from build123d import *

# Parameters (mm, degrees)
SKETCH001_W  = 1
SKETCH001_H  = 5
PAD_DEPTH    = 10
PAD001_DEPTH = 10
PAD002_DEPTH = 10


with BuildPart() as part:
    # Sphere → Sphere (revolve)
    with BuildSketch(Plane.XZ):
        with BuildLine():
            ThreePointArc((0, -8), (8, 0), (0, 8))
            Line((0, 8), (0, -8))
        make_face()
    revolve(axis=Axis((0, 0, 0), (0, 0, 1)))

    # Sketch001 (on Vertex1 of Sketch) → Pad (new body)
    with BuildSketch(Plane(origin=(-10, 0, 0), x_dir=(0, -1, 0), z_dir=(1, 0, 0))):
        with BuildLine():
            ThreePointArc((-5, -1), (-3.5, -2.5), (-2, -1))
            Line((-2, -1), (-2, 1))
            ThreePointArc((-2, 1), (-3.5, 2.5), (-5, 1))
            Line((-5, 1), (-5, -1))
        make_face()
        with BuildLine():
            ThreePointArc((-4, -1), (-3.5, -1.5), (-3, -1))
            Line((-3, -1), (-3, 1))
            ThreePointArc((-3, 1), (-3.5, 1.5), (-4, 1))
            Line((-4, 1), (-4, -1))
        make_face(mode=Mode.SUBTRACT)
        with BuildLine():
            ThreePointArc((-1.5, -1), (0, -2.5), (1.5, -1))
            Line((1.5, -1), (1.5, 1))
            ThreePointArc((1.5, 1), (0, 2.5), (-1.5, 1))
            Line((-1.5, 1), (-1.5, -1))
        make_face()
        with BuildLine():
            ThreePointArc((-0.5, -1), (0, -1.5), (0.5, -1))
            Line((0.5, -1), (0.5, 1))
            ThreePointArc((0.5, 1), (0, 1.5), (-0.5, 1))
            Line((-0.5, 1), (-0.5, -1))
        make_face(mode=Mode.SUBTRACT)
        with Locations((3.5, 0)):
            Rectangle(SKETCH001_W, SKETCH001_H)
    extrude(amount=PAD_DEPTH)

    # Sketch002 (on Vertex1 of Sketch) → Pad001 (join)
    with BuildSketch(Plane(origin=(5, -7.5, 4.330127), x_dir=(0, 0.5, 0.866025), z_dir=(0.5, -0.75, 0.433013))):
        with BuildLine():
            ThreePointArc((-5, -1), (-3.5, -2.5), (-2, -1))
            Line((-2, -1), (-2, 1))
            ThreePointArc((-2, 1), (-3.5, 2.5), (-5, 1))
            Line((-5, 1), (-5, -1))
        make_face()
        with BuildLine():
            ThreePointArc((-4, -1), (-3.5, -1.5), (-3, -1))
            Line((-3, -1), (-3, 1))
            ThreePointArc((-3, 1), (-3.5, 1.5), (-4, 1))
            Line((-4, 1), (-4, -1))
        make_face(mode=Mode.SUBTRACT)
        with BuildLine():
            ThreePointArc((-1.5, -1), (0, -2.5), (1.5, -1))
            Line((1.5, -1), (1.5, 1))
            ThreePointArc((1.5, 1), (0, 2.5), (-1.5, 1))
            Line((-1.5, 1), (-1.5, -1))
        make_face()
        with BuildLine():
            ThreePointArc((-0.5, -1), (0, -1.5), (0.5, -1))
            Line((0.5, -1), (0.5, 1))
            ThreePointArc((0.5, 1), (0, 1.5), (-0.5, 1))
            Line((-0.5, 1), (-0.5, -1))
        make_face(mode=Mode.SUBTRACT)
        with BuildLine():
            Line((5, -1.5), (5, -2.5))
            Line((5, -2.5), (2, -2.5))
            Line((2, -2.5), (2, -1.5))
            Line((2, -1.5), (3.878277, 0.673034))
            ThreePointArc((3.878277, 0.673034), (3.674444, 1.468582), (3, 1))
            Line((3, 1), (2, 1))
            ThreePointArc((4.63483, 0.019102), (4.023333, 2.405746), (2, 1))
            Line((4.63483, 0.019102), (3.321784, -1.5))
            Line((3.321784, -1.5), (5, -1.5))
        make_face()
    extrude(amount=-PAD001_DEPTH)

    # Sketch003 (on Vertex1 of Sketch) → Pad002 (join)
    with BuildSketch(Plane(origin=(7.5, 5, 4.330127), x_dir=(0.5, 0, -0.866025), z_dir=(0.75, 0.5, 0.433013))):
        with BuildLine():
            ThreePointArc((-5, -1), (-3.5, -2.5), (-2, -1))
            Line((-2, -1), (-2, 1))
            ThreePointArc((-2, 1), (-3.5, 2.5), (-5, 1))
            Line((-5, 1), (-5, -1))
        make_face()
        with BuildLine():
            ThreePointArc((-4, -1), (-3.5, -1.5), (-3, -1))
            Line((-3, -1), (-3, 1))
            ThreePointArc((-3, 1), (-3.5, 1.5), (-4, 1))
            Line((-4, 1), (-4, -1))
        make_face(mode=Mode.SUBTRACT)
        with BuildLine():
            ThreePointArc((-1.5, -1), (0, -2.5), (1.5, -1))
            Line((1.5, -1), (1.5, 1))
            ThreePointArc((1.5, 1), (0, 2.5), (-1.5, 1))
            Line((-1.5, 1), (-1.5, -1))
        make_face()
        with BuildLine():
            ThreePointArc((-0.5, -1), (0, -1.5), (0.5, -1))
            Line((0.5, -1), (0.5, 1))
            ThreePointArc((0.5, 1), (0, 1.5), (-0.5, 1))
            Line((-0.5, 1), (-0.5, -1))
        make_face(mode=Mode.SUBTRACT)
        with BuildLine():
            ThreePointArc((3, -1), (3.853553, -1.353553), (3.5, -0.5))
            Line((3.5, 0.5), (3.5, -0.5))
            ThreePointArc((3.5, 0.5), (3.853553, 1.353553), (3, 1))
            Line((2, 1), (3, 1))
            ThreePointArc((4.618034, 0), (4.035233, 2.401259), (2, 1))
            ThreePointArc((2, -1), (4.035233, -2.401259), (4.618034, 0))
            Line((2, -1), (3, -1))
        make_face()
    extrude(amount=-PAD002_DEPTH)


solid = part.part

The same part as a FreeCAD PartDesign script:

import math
import FreeCAD as App
import Part
import Sketcher
from FreeCAD import Vector
Q = App.Units.Quantity


def add_polygon(sketch, points):
    """Adds a closed chain of lines whose ends are joined by coincident constraints."""
    first, n = sketch.GeometryCount, len(points)
    for a, b in zip(points, points[1:] + points[:1]):
        sketch.addGeometry(Part.LineSegment(App.Vector(*a, 0), App.Vector(*b, 0)), False)
    for i in range(n):
        sketch.addConstraint(Sketcher.Constraint("Coincident", first + i, 2, first + (i + 1) % n, 1))

doc = App.newDocument("Part")
params = doc.addObject("Spreadsheet::Sheet", "Params")
for row, (alias, value) in enumerate([
    ("sketch1_radius", "8 mm"),
    ("revolution_angle", "360 deg"),
    ("sketch2_radius", "1.5 mm"),
    ("sketch2_radius2", "0.5 mm"),
    ("sketch2_width", "1 mm"),
    ("sketch2_height", "2 mm"),
    ("sketch2_height2", "5 mm"),
    ("pad1_length", "10 mm"),
    ("sketch3_radius", "1.5 mm"),
    ("sketch3_radius2", "0.5 mm"),
    ("sketch3_width", "3 mm"),
    ("sketch3_height", "2 mm"),
    ("pad2_length", "10 mm"),
    ("sketch4_radius", "1.5 mm"),
    ("sketch4_radius2", "0.5 mm"),
    ("pad3_length", "10 mm"),
], start=1):
    params.set(f"A{row}", alias)
    params.set(f"B{row}", "=" + value)
    params.setAlias(f"B{row}", alias)

body = doc.addObject("PartDesign::Body", "Body")

# Sketch on XZ plane
sketch1 = body.newObject("Sketcher::SketchObject", "Sketch")
sketch1.AttachmentSupport = (doc.getObject("XZ_Plane"), [""])
sketch1.MapMode = "FlatFace"
sketch1.addGeometry([
    Part.ArcOfCircle(Part.Circle(Vector(0, 0, 0), Vector(0, 0, 1), 8), math.radians(-90), math.radians(90)),
    Part.LineSegment(Vector(0, 8, 0), Vector(0, -8, 0)),
], False)
sketch1.addConstraint([
    Sketcher.Constraint("Coincident", 0, 1, 1, 2),
    Sketcher.Constraint("Coincident", 1, 1, 0, 2),
    Sketcher.Constraint("Vertical", 1),
    Sketcher.Constraint("Coincident", 0, 3, -1, 1),
    Sketcher.Constraint("PointOnObject", 0, 1, -2),
    Sketcher.Constraint("Radius", 0, Q("8 mm")),
])
sketch1.setExpression("Constraints[5]", "Params.sketch1_radius")
revolution = body.newObject("PartDesign::Revolution", "Revolution")
revolution.Profile = sketch1
revolution.ReferenceAxis = (sketch1, ["V_Axis"])
revolution.setExpression("Angle", "Params.revolution_angle")

# Sketch on YZ plane
sketch2 = body.newObject("Sketcher::SketchObject", "Sketch001")
sketch2.AttachmentSupport = (doc.getObject("YZ_Plane"), [""])
sketch2.MapMode = "FlatFace"
sketch2.AttachmentOffset = App.Placement(Vector(0, 0, -10), App.Rotation())
sketch2.addGeometry(Part.ArcOfCircle(Part.Circle(Vector(3.5, 1, 0), Vector(0, 0, 1), 1.5), math.radians(0), math.radians(180)), False)  # 0
sketch2.addGeometry(Part.LineSegment(Vector(2, 1, 0), Vector(2, -1, 0)), False)  # 1
sketch2.addGeometry(Part.ArcOfCircle(Part.Circle(Vector(3.5, -1, 0), Vector(0, 0, 1), 1.5), math.radians(180), math.radians(360)), False)  # 2
sketch2.addGeometry(Part.LineSegment(Vector(5, -1, 0), Vector(5, 1, 0)), False)  # 3
sketch2.addGeometry(Part.ArcOfCircle(Part.Circle(Vector(3.5, 1, 0), Vector(0, 0, 1), 0.5), math.radians(0), math.radians(180)), False)  # 4
sketch2.addGeometry(Part.LineSegment(Vector(4, 1, 0), Vector(4, -1, 0)), False)  # 5
sketch2.addGeometry(Part.ArcOfCircle(Part.Circle(Vector(3.5, -1, 0), Vector(0, 0, 1), 0.5), math.radians(180), math.radians(360)), False)  # 6
sketch2.addGeometry(Part.LineSegment(Vector(3, -1, 0), Vector(3, 1, 0)), False)  # 7
sketch2.addGeometry(Part.ArcOfCircle(Part.Circle(Vector(0, 1, 0), Vector(0, 0, 1), 1.5), math.radians(0), math.radians(180)), False)  # 8
sketch2.addGeometry(Part.LineSegment(Vector(-1.5, 1, 0), Vector(-1.5, -1, 0)), False)  # 9
sketch2.addGeometry(Part.ArcOfCircle(Part.Circle(Vector(0, -1, 0), Vector(0, 0, 1), 1.5), math.radians(180), math.radians(360)), False)  # 10
sketch2.addGeometry(Part.LineSegment(Vector(1.5, -1, 0), Vector(1.5, 1, 0)), False)  # 11
sketch2.addGeometry(Part.ArcOfCircle(Part.Circle(Vector(0, 1, 0), Vector(0, 0, 1), 0.5), math.radians(0), math.radians(180)), False)  # 12
sketch2.addGeometry(Part.LineSegment(Vector(0.5, 1, 0), Vector(0.5, -1, 0)), False)  # 13
sketch2.addGeometry(Part.ArcOfCircle(Part.Circle(Vector(0, -1, 0), Vector(0, 0, 1), 0.5), math.radians(180), math.radians(360)), False)  # 14
sketch2.addGeometry(Part.LineSegment(Vector(-0.5, -1, 0), Vector(-0.5, 1, 0)), False)  # 15
add_polygon(sketch2, [(-3, -2.5), (-3, 2.5), (-4, 2.5), (-4, -2.5)])  # lines 16-19
sketch2.addConstraint([
    Sketcher.Constraint("Tangent", 0, 2, 1, 1),
    Sketcher.Constraint("Tangent", 1, 2, 2, 1),
    Sketcher.Constraint("Tangent", 2, 2, 3, 1),
    Sketcher.Constraint("Tangent", 3, 2, 0, 1),
    Sketcher.Constraint("Tangent", 4, 1, 5, 1),
    Sketcher.Constraint("Tangent", 5, 2, 6, 2),
    Sketcher.Constraint("Tangent", 6, 1, 7, 1),
    Sketcher.Constraint("Tangent", 7, 2, 4, 2),
    Sketcher.Constraint("Tangent", 8, 2, 9, 1),
    Sketcher.Constraint("Tangent", 9, 2, 10, 1),
    Sketcher.Constraint("Tangent", 10, 2, 11, 1),
    Sketcher.Constraint("Tangent", 11, 2, 8, 1),
    Sketcher.Constraint("Tangent", 12, 1, 13, 1),
    Sketcher.Constraint("Tangent", 13, 2, 14, 2),
    Sketcher.Constraint("Tangent", 14, 1, 15, 1),
    Sketcher.Constraint("Tangent", 15, 2, 12, 2),
    Sketcher.Constraint("Vertical", 1),
    Sketcher.Constraint("Vertical", 3),
    Sketcher.Constraint("Vertical", 5),
    Sketcher.Constraint("Vertical", 7),
    Sketcher.Constraint("Vertical", 9),
    Sketcher.Constraint("Vertical", 11),
    Sketcher.Constraint("Vertical", 13),
    Sketcher.Constraint("Vertical", 15),
    Sketcher.Constraint("Vertical", 16),
    Sketcher.Constraint("Horizontal", 17),
    Sketcher.Constraint("Vertical", 18),
    Sketcher.Constraint("Horizontal", 19),
    Sketcher.Constraint("Coincident", 4, 3, 0, 3),
    Sketcher.Constraint("Coincident", 12, 3, 8, 3),
    Sketcher.Constraint("Equal", 2, 8),
    Sketcher.Constraint("Equal", 6, 12),
    Sketcher.Constraint("Symmetric", 8, 3, 10, 3, -1, 1),
    Sketcher.Constraint("Horizontal", 4, 3, 8, 3),
    Sketcher.Constraint("Horizontal", 6, 3, 10, 3),
    Sketcher.Constraint("Horizontal", 6, 3, 14, 3),
    Sketcher.Constraint("Horizontal", 14, 3, 1, 2),
    Sketcher.Constraint("Radius", 0, Q("1.5 mm")),
    Sketcher.Constraint("Radius", 4, Q("0.5 mm")),
    Sketcher.Constraint("DistanceX", 17, 2, 17, 1, Q("1 mm")),
    Sketcher.Constraint("DistanceY", 1, 2, 1, 1, Q("2 mm")),
    Sketcher.Constraint("DistanceY", 16, 1, 16, 2, Q("5 mm")),
    Sketcher.Constraint("DistanceX", -1, 1, 0, 2, Q("2 mm")),
    Sketcher.Constraint("DistanceX", 16, 2, -1, 1, Q("3 mm")),
    Sketcher.Constraint("DistanceY", -1, 1, 16, 2, Q("2.5 mm")),
])
sketch2.setExpression("Constraints[41]", "Params.sketch2_radius")
sketch2.setExpression("Constraints[42]", "Params.sketch2_radius2")
sketch2.setExpression("Constraints[43]", "Params.sketch2_width")
sketch2.setExpression("Constraints[44]", "Params.sketch2_height")
sketch2.setExpression("Constraints[45]", "Params.sketch2_height2")
pad1 = body.newObject("PartDesign::Pad", "Pad")
pad1.Profile = sketch2
pad1.setExpression("Length", "Params.pad1_length")

# Sketch on an angled plane
sketch3 = body.newObject("Sketcher::SketchObject", "Sketch002")
sketch3.Placement = App.Placement(Vector(5, -7.5, 4.330127), App.Rotation(Vector(-0.000000042, 0.500000237, 0.866025267), Vector(-0.866025441, -0.433012595, 0.250000054), Vector(0.499999935, -0.749999903, 0.433012944), "ZXY"))
sketch3.addGeometry([
    Part.ArcOfCircle(Part.Circle(Vector(-3.5, -1, 0), Vector(0, 0, 1), 1.5), math.radians(180), math.radians(360)),  # 0
    Part.LineSegment(Vector(-2, -1, 0), Vector(-2, 1, 0)),  # 1
    Part.ArcOfCircle(Part.Circle(Vector(-3.5, 1, 0), Vector(0, 0, 1), 1.5), math.radians(0), math.radians(180)),  # 2
    Part.LineSegment(Vector(-5, 1, 0), Vector(-5, -1, 0)),  # 3
    Part.ArcOfCircle(Part.Circle(Vector(-3.5, -1, 0), Vector(0, 0, 1), 0.5), math.radians(180), math.radians(360)),  # 4
    Part.LineSegment(Vector(-4, -1, 0), Vector(-4, 1, 0)),  # 5
    Part.ArcOfCircle(Part.Circle(Vector(-3.5, 1, 0), Vector(0, 0, 1), 0.5), math.radians(0), math.radians(180)),  # 6
    Part.LineSegment(Vector(-3, 1, 0), Vector(-3, -1, 0)),  # 7
    Part.ArcOfCircle(Part.Circle(Vector(0, -1, 0), Vector(0, 0, 1), 1.5), math.radians(180), math.radians(360)),  # 8
    Part.LineSegment(Vector(1.5, -1, 0), Vector(1.5, 1, 0)),  # 9
    Part.ArcOfCircle(Part.Circle(Vector(0, 1, 0), Vector(0, 0, 1), 1.5), math.radians(0), math.radians(180)),  # 10
    Part.LineSegment(Vector(-1.5, 1, 0), Vector(-1.5, -1, 0)),  # 11
    Part.ArcOfCircle(Part.Circle(Vector(0, -1, 0), Vector(0, 0, 1), 0.5), math.radians(180), math.radians(360)),  # 12
    Part.LineSegment(Vector(-0.5, -1, 0), Vector(-0.5, 1, 0)),  # 13
    Part.ArcOfCircle(Part.Circle(Vector(0, 1, 0), Vector(0, 0, 1), 0.5), math.radians(0), math.radians(180)),  # 14
    Part.LineSegment(Vector(0.5, 1, 0), Vector(0.5, -1, 0)),  # 15
    Part.LineSegment(Vector(5, -2.5, 0), Vector(5, -1.5, 0)),  # 16
    Part.LineSegment(Vector(5, -1.5, 0), Vector(3.3, -1.5, 0)),  # 17
    Part.LineSegment(Vector(3.3, -1.5, 0), Vector(4.6, 0, 0)),  # 18
    Part.ArcOfCircle(Part.Circle(Vector(3.5, 1, 0), Vector(0, 0, 1), 1.5), math.radians(-41), math.radians(180)),  # 19
    Part.LineSegment(Vector(2, 1, 0), Vector(3, 1, 0)),  # 20
    Part.ArcOfCircle(Part.Circle(Vector(3.5, 1, 0), Vector(0, 0, 1), 0.5), math.radians(-41), math.radians(180)),  # 21
    Part.LineSegment(Vector(3.9, 0.7, 0), Vector(2, -1.5, 0)),  # 22
    Part.LineSegment(Vector(2, -1.5, 0), Vector(2, -2.5, 0)),  # 23
    Part.LineSegment(Vector(2, -2.5, 0), Vector(5, -2.5, 0)),  # 24
], False)
sketch3.addConstraint([
    Sketcher.Constraint("Tangent", 0, 2, 1, 1),
    Sketcher.Constraint("Tangent", 1, 2, 2, 1),
    Sketcher.Constraint("Tangent", 2, 2, 3, 1),
    Sketcher.Constraint("Tangent", 3, 2, 0, 1),
    Sketcher.Constraint("Tangent", 4, 1, 5, 1),
    Sketcher.Constraint("Tangent", 5, 2, 6, 2),
    Sketcher.Constraint("Tangent", 6, 1, 7, 1),
    Sketcher.Constraint("Tangent", 7, 2, 4, 2),
    Sketcher.Constraint("Tangent", 8, 2, 9, 1),
    Sketcher.Constraint("Tangent", 9, 2, 10, 1),
    Sketcher.Constraint("Tangent", 10, 2, 11, 1),
    Sketcher.Constraint("Tangent", 11, 2, 8, 1),
    Sketcher.Constraint("Tangent", 12, 1, 13, 1),
    Sketcher.Constraint("Tangent", 13, 2, 14, 2),
    Sketcher.Constraint("Tangent", 14, 1, 15, 1),
    Sketcher.Constraint("Tangent", 15, 2, 12, 2),
    Sketcher.Constraint("Coincident", 16, 2, 17, 1),
    Sketcher.Constraint("Coincident", 17, 2, 18, 1),
    Sketcher.Constraint("Tangent", 18, 2, 19, 1),
    Sketcher.Constraint("Coincident", 19, 2, 20, 1),
    Sketcher.Constraint("Coincident", 20, 2, 21, 2),
    Sketcher.Constraint("Tangent", 21, 1, 22, 1),
    Sketcher.Constraint("Coincident", 22, 2, 23, 1),
    Sketcher.Constraint("Coincident", 23, 2, 24, 1),
    Sketcher.Constraint("Coincident", 24, 2, 16, 1),
    Sketcher.Constraint("Vertical", 1),
    Sketcher.Constraint("Vertical", 3),
    Sketcher.Constraint("Vertical", 5),
    Sketcher.Constraint("Vertical", 7),
    Sketcher.Constraint("Vertical", 9),
    Sketcher.Constraint("Vertical", 11),
    Sketcher.Constraint("Vertical", 13),
    Sketcher.Constraint("Vertical", 15),
    Sketcher.Constraint("Vertical", 16),
    Sketcher.Constraint("Horizontal", 17),
    Sketcher.Constraint("Horizontal", 20),
    Sketcher.Constraint("Vertical", 23),
    Sketcher.Constraint("Horizontal", 24),
    Sketcher.Constraint("Coincident", 4, 3, 0, 3),
    Sketcher.Constraint("Coincident", 12, 3, 8, 3),
    Sketcher.Constraint("Coincident", 21, 3, 19, 3),
    Sketcher.Constraint("Equal", 2, 8),
    Sketcher.Constraint("Equal", 6, 12),
    Sketcher.Constraint("Equal", 10, 19),
    Sketcher.Constraint("Equal", 14, 21),
    Sketcher.Constraint("Symmetric", 8, 3, 10, 3, -1, 1),
    Sketcher.Constraint("Symmetric", 0, 3, 19, 3, -1, 1),
    Sketcher.Constraint("Parallel", 18, 22),
    Sketcher.Constraint("Horizontal", 4, 3, 8, 3),
    Sketcher.Constraint("Horizontal", 6, 3, 10, 3),
    Sketcher.Constraint("Horizontal", 6, 3, 14, 3),
    Sketcher.Constraint("Horizontal", 21, 3, 1, 2),
    Sketcher.Constraint("Horizontal", 14, 1, 19, 2),
    Sketcher.Constraint("Horizontal", 17, 2, 22, 2),
    Sketcher.Constraint("Vertical", 19, 2, 22, 2),
    Sketcher.Constraint("Equal", 20, 16),
    Sketcher.Constraint("Radius", 0, Q("1.5 mm")),
    Sketcher.Constraint("Radius", 4, Q("0.5 mm")),
    Sketcher.Constraint("DistanceX", 24, 1, 24, 2, Q("3 mm")),
    Sketcher.Constraint("DistanceY", 1, 1, 1, 2, Q("2 mm")),
    Sketcher.Constraint("DistanceX", 0, 2, -1, 1, Q("2 mm")),
    Sketcher.Constraint("DistanceY", 16, 2, -1, 1, Q("1.5 mm")),
])
sketch3.setExpression("Constraints[56]", "Params.sketch3_radius")
sketch3.setExpression("Constraints[57]", "Params.sketch3_radius2")
sketch3.setExpression("Constraints[58]", "Params.sketch3_width")
sketch3.setExpression("Constraints[59]", "Params.sketch3_height")
pad2 = body.newObject("PartDesign::Pad", "Pad001")
pad2.Profile = sketch3
pad2.setExpression("Length", "Params.pad2_length")
pad2.Reversed = True

# Sketch on an angled plane
sketch4 = body.newObject("Sketcher::SketchObject", "Sketch003")
sketch4.Placement = App.Placement(Vector(7.5, 5, 4.330127), App.Rotation(Vector(0.500000237, 0.000000042, -0.866025267), Vector(-0.433012595, 0.866025441, -0.250000054), Vector(0.749999903, 0.499999935, 0.433012944), "ZXY"))
sketch4.addGeometry([
    Part.ArcOfCircle(Part.Circle(Vector(-3.5, -1, 0), Vector(0, 0, 1), 1.5), math.radians(180), math.radians(360)),  # 0
    Part.LineSegment(Vector(-2, -1, 0), Vector(-2, 1, 0)),  # 1
    Part.ArcOfCircle(Part.Circle(Vector(-3.5, 1, 0), Vector(0, 0, 1), 1.5), math.radians(0), math.radians(180)),  # 2
    Part.LineSegment(Vector(-5, 1, 0), Vector(-5, -1, 0)),  # 3
    Part.ArcOfCircle(Part.Circle(Vector(-3.5, -1, 0), Vector(0, 0, 1), 0.5), math.radians(180), math.radians(360)),  # 4
    Part.LineSegment(Vector(-4, -1, 0), Vector(-4, 1, 0)),  # 5
    Part.ArcOfCircle(Part.Circle(Vector(-3.5, 1, 0), Vector(0, 0, 1), 0.5), math.radians(0), math.radians(180)),  # 6
    Part.LineSegment(Vector(-3, 1, 0), Vector(-3, -1, 0)),  # 7
    Part.ArcOfCircle(Part.Circle(Vector(0, -1, 0), Vector(0, 0, 1), 1.5), math.radians(180), math.radians(360)),  # 8
    Part.LineSegment(Vector(1.5, -1, 0), Vector(1.5, 1, 0)),  # 9
    Part.ArcOfCircle(Part.Circle(Vector(0, 1, 0), Vector(0, 0, 1), 1.5), math.radians(0), math.radians(180)),  # 10
    Part.LineSegment(Vector(-1.5, 1, 0), Vector(-1.5, -1, 0)),  # 11
    Part.ArcOfCircle(Part.Circle(Vector(0, -1, 0), Vector(0, 0, 1), 0.5), math.radians(180), math.radians(360)),  # 12
    Part.LineSegment(Vector(-0.5, -1, 0), Vector(-0.5, 1, 0)),  # 13
    Part.ArcOfCircle(Part.Circle(Vector(0, 1, 0), Vector(0, 0, 1), 0.5), math.radians(0), math.radians(180)),  # 14
    Part.LineSegment(Vector(0.5, 1, 0), Vector(0.5, -1, 0)),  # 15
    Part.ArcOfCircle(Part.Circle(Vector(3.5, -1, 0), Vector(0, 0, 1), 0.5), math.radians(-180), math.radians(90)),  # 16
    Part.LineSegment(Vector(3, -1, 0), Vector(2, -1, 0)),  # 17
    Part.ArcOfCircle(Part.Circle(Vector(3.5, -1, 0), Vector(0, 0, 1), 1.5), math.radians(180), math.radians(402)),  # 18
    Part.ArcOfCircle(Part.Circle(Vector(3.5, 1, 0), Vector(0, 0, 1), 1.5), math.radians(-42), math.radians(180)),  # 19
    Part.LineSegment(Vector(2, 1, 0), Vector(3, 1, 0)),  # 20
    Part.ArcOfCircle(Part.Circle(Vector(3.5, 1, 0), Vector(0, 0, 1), 0.5), math.radians(-90), math.radians(180)),  # 21
    Part.LineSegment(Vector(3.5, 0.5, 0), Vector(3.5, -0.5, 0)),  # 22
], False)
sketch4.addConstraint([
    Sketcher.Constraint("Tangent", 0, 2, 1, 1),
    Sketcher.Constraint("Tangent", 1, 2, 2, 1),
    Sketcher.Constraint("Tangent", 2, 2, 3, 1),
    Sketcher.Constraint("Tangent", 3, 2, 0, 1),
    Sketcher.Constraint("Tangent", 4, 1, 5, 1),
    Sketcher.Constraint("Tangent", 5, 2, 6, 2),
    Sketcher.Constraint("Tangent", 6, 1, 7, 1),
    Sketcher.Constraint("Tangent", 7, 2, 4, 2),
    Sketcher.Constraint("Tangent", 8, 2, 9, 1),
    Sketcher.Constraint("Tangent", 9, 2, 10, 1),
    Sketcher.Constraint("Tangent", 10, 2, 11, 1),
    Sketcher.Constraint("Tangent", 11, 2, 8, 1),
    Sketcher.Constraint("Tangent", 12, 1, 13, 1),
    Sketcher.Constraint("Tangent", 13, 2, 14, 2),
    Sketcher.Constraint("Tangent", 14, 1, 15, 1),
    Sketcher.Constraint("Tangent", 15, 2, 12, 2),
    Sketcher.Constraint("Coincident", 16, 1, 17, 1),
    Sketcher.Constraint("Coincident", 17, 2, 18, 1),
    Sketcher.Constraint("Coincident", 18, 2, 19, 1),
    Sketcher.Constraint("Coincident", 19, 2, 20, 1),
    Sketcher.Constraint("Coincident", 20, 2, 21, 2),
    Sketcher.Constraint("Coincident", 21, 1, 22, 1),
    Sketcher.Constraint("Coincident", 22, 2, 16, 2),
    Sketcher.Constraint("Vertical", 1),
    Sketcher.Constraint("Vertical", 3),
    Sketcher.Constraint("Vertical", 5),
    Sketcher.Constraint("Vertical", 7),
    Sketcher.Constraint("Vertical", 9),
    Sketcher.Constraint("Vertical", 11),
    Sketcher.Constraint("Vertical", 13),
    Sketcher.Constraint("Vertical", 15),
    Sketcher.Constraint("Horizontal", 17),
    Sketcher.Constraint("Horizontal", 20),
    Sketcher.Constraint("Vertical", 22),
    Sketcher.Constraint("Coincident", 4, 3, 0, 3),
    Sketcher.Constraint("Coincident", 12, 3, 8, 3),
    Sketcher.Constraint("Coincident", 18, 3, 16, 3),
    Sketcher.Constraint("Coincident", 21, 3, 19, 3),
    Sketcher.Constraint("Equal", 2, 8),
    Sketcher.Constraint("Equal", 6, 12),
    Sketcher.Constraint("Equal", 14, 16),
    Sketcher.Constraint("Equal", 10, 18),
    Sketcher.Constraint("Equal", 18, 19),
    Sketcher.Constraint("Equal", 16, 21),
    Sketcher.Constraint("Symmetric", 8, 3, 10, 3, -1, 1),
    Sketcher.Constraint("Symmetric", 2, 3, 16, 3, -1, 1),
    Sketcher.Constraint("Symmetric", 0, 3, 19, 3, -1, 1),
    Sketcher.Constraint("PointOnObject", 18, 2, -1),
    Sketcher.Constraint("Horizontal", 4, 3, 8, 3),
    Sketcher.Constraint("Horizontal", 6, 3, 10, 3),
    Sketcher.Constraint("Horizontal", 6, 3, 14, 3),
    Sketcher.Constraint("Horizontal", 15, 2, 16, 1),
    Sketcher.Constraint("Horizontal", 14, 1, 19, 2),
    Sketcher.Constraint("Vertical", 19, 3, 21, 1),
    Sketcher.Constraint("Equal", 20, 22),
    Sketcher.Constraint("Radius", 0, Q("1.5 mm")),
    Sketcher.Constraint("Radius", 4, Q("0.5 mm")),
    Sketcher.Constraint("DistanceX", 0, 2, -1, 1, Q("2 mm")),
])
sketch4.setExpression("Constraints[55]", "Params.sketch4_radius")
sketch4.setExpression("Constraints[56]", "Params.sketch4_radius2")
pad3 = body.newObject("PartDesign::Pad", "Pad002")
pad3.Profile = sketch4
pad3.setExpression("Length", "Params.pad3_length")
pad3.Reversed = True

doc.recompute()
